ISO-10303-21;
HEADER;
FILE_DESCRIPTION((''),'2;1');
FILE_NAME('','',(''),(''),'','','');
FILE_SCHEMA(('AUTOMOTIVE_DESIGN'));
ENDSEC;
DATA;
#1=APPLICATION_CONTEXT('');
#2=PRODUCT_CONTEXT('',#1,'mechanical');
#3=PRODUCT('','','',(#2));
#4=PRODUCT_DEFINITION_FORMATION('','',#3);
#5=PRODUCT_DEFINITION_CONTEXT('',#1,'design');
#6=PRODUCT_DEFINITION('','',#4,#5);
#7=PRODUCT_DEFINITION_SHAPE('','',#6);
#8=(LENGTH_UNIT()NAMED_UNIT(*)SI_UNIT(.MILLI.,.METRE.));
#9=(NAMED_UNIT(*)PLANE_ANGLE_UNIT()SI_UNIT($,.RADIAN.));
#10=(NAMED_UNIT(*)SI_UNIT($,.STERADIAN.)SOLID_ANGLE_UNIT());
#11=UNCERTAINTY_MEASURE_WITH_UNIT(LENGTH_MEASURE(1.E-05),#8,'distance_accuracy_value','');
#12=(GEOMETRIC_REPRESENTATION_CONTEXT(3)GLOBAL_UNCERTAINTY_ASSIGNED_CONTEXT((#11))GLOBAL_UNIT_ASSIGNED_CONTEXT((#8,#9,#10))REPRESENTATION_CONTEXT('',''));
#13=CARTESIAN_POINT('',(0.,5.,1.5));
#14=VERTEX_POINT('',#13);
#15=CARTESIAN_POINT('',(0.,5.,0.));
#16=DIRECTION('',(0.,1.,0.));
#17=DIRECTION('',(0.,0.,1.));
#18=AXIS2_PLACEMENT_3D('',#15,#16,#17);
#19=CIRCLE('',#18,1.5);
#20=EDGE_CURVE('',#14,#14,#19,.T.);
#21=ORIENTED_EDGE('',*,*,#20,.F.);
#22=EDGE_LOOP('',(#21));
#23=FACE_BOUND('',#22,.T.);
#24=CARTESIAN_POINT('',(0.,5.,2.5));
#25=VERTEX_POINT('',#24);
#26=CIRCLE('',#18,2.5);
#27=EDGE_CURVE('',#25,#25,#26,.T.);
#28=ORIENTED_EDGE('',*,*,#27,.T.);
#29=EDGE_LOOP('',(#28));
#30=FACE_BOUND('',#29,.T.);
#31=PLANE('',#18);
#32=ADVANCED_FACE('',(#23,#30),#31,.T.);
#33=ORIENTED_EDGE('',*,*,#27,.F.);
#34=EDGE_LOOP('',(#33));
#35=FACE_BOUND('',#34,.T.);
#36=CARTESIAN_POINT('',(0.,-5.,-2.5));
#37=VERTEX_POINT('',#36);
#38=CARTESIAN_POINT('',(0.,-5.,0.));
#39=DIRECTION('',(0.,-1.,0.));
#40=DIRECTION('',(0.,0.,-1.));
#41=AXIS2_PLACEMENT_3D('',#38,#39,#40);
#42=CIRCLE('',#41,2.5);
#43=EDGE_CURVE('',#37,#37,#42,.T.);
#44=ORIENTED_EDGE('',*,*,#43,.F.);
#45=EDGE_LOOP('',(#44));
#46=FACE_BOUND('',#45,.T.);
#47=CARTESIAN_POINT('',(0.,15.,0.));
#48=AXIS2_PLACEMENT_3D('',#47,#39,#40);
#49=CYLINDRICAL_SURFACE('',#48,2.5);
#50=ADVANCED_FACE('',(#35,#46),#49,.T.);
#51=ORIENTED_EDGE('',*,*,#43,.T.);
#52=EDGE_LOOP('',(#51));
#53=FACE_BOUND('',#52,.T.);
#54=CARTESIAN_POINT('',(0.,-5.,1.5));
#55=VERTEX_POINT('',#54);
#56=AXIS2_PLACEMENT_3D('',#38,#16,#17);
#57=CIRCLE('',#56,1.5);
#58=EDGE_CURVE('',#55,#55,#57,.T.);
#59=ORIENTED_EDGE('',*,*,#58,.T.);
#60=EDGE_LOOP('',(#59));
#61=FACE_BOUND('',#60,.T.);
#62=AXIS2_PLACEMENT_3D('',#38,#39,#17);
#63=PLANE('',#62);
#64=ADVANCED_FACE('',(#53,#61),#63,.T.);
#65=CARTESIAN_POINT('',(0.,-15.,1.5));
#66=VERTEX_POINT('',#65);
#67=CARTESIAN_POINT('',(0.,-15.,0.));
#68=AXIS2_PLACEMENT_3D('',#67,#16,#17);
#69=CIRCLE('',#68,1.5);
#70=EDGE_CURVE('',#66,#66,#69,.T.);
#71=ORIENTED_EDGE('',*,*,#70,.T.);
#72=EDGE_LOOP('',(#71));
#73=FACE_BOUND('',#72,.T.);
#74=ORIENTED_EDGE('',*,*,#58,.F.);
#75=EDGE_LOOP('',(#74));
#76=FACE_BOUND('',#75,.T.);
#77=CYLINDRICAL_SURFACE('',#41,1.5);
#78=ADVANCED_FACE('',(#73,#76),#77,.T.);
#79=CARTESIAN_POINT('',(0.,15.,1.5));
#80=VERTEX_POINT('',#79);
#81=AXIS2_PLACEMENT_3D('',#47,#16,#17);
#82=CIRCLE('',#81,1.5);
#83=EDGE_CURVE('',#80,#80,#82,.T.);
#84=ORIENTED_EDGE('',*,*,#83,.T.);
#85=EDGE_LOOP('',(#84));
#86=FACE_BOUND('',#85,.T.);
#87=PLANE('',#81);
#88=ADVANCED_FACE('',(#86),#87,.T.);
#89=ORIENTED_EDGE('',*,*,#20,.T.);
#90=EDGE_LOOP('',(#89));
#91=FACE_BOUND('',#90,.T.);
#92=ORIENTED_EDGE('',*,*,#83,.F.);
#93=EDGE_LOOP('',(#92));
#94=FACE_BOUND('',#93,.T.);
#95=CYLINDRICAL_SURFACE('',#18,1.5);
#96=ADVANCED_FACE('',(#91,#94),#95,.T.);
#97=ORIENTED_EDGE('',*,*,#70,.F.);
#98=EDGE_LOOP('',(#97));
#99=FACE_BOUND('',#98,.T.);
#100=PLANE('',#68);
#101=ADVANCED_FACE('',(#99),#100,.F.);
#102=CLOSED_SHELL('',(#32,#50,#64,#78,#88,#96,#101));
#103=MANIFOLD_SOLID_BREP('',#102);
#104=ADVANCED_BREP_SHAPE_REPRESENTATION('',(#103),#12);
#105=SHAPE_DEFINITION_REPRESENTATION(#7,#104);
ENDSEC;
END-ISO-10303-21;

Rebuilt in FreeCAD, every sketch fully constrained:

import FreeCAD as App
import Part
import Sketcher

doc = App.newDocument("Part")
body = doc.addObject("PartDesign::Body", "Body")

# Sketch on XZ plane
sketch1 = doc.addObject("Sketcher::SketchObject", "Sketch")
body.addObject(sketch1)
sketch1.AttachmentSupport = (doc.XZ_Plane, [""])
sketch1.MapMode = "FlatFace"
sketch1.addGeometry(Part.Circle(App.Vector(0, 0, 0), App.Vector(0, 0, 1), 2.5), False)
sketch1.addConstraint([
    Sketcher.Constraint("Coincident", 0, 3, -1, 1),
    Sketcher.Constraint("Diameter", 0, 5.0),
])
pad1 = doc.addObject("PartDesign::Pad", "Pad")
body.addObject(pad1)
pad1.Profile = sketch1
pad1.Length = 30
pad1.Midplane = True

# Sketch on XZ plane
sketch2 = doc.addObject("Sketcher::SketchObject", "Sketch001")
body.addObject(sketch2)
sketch2.AttachmentSupport = (doc.XZ_Plane, [""])
sketch2.MapMode = "FlatFace"
sketch2.AttachmentOffset = App.Placement(App.Vector(0, 0, -15), App.Rotation())
sketch2.addGeometry([
    Part.Circle(App.Vector(0, 0, 0), App.Vector(0, 0, 1), 12.5),
    Part.Circle(App.Vector(0, 0, 0), App.Vector(0, 0, 1), 1.5),
], False)
sketch2.addConstraint([
    Sketcher.Constraint("Coincident", 0, 3, -1, 1),
    Sketcher.Constraint("Coincident", 1, 3, -1, 1),
    Sketcher.Constraint("Diameter", 0, 25.0),
    Sketcher.Constraint("Diameter", 1, 3.0),
])
pocket1 = doc.addObject("PartDesign::Pocket", "Pocket")
body.addObject(pocket1)
pocket1.Profile = sketch2
pocket1.Length = 10
pocket1.Reversed = True
doc.recompute()

mirrored = doc.addObject("PartDesign::Mirrored", "Mirrored")
body.addObject(mirrored)
mirrored.Originals = [pocket1]
mirrored.MirrorPlane = (doc.XZ_Plane, [""])
body.Tip = mirrored

doc.recompute()
